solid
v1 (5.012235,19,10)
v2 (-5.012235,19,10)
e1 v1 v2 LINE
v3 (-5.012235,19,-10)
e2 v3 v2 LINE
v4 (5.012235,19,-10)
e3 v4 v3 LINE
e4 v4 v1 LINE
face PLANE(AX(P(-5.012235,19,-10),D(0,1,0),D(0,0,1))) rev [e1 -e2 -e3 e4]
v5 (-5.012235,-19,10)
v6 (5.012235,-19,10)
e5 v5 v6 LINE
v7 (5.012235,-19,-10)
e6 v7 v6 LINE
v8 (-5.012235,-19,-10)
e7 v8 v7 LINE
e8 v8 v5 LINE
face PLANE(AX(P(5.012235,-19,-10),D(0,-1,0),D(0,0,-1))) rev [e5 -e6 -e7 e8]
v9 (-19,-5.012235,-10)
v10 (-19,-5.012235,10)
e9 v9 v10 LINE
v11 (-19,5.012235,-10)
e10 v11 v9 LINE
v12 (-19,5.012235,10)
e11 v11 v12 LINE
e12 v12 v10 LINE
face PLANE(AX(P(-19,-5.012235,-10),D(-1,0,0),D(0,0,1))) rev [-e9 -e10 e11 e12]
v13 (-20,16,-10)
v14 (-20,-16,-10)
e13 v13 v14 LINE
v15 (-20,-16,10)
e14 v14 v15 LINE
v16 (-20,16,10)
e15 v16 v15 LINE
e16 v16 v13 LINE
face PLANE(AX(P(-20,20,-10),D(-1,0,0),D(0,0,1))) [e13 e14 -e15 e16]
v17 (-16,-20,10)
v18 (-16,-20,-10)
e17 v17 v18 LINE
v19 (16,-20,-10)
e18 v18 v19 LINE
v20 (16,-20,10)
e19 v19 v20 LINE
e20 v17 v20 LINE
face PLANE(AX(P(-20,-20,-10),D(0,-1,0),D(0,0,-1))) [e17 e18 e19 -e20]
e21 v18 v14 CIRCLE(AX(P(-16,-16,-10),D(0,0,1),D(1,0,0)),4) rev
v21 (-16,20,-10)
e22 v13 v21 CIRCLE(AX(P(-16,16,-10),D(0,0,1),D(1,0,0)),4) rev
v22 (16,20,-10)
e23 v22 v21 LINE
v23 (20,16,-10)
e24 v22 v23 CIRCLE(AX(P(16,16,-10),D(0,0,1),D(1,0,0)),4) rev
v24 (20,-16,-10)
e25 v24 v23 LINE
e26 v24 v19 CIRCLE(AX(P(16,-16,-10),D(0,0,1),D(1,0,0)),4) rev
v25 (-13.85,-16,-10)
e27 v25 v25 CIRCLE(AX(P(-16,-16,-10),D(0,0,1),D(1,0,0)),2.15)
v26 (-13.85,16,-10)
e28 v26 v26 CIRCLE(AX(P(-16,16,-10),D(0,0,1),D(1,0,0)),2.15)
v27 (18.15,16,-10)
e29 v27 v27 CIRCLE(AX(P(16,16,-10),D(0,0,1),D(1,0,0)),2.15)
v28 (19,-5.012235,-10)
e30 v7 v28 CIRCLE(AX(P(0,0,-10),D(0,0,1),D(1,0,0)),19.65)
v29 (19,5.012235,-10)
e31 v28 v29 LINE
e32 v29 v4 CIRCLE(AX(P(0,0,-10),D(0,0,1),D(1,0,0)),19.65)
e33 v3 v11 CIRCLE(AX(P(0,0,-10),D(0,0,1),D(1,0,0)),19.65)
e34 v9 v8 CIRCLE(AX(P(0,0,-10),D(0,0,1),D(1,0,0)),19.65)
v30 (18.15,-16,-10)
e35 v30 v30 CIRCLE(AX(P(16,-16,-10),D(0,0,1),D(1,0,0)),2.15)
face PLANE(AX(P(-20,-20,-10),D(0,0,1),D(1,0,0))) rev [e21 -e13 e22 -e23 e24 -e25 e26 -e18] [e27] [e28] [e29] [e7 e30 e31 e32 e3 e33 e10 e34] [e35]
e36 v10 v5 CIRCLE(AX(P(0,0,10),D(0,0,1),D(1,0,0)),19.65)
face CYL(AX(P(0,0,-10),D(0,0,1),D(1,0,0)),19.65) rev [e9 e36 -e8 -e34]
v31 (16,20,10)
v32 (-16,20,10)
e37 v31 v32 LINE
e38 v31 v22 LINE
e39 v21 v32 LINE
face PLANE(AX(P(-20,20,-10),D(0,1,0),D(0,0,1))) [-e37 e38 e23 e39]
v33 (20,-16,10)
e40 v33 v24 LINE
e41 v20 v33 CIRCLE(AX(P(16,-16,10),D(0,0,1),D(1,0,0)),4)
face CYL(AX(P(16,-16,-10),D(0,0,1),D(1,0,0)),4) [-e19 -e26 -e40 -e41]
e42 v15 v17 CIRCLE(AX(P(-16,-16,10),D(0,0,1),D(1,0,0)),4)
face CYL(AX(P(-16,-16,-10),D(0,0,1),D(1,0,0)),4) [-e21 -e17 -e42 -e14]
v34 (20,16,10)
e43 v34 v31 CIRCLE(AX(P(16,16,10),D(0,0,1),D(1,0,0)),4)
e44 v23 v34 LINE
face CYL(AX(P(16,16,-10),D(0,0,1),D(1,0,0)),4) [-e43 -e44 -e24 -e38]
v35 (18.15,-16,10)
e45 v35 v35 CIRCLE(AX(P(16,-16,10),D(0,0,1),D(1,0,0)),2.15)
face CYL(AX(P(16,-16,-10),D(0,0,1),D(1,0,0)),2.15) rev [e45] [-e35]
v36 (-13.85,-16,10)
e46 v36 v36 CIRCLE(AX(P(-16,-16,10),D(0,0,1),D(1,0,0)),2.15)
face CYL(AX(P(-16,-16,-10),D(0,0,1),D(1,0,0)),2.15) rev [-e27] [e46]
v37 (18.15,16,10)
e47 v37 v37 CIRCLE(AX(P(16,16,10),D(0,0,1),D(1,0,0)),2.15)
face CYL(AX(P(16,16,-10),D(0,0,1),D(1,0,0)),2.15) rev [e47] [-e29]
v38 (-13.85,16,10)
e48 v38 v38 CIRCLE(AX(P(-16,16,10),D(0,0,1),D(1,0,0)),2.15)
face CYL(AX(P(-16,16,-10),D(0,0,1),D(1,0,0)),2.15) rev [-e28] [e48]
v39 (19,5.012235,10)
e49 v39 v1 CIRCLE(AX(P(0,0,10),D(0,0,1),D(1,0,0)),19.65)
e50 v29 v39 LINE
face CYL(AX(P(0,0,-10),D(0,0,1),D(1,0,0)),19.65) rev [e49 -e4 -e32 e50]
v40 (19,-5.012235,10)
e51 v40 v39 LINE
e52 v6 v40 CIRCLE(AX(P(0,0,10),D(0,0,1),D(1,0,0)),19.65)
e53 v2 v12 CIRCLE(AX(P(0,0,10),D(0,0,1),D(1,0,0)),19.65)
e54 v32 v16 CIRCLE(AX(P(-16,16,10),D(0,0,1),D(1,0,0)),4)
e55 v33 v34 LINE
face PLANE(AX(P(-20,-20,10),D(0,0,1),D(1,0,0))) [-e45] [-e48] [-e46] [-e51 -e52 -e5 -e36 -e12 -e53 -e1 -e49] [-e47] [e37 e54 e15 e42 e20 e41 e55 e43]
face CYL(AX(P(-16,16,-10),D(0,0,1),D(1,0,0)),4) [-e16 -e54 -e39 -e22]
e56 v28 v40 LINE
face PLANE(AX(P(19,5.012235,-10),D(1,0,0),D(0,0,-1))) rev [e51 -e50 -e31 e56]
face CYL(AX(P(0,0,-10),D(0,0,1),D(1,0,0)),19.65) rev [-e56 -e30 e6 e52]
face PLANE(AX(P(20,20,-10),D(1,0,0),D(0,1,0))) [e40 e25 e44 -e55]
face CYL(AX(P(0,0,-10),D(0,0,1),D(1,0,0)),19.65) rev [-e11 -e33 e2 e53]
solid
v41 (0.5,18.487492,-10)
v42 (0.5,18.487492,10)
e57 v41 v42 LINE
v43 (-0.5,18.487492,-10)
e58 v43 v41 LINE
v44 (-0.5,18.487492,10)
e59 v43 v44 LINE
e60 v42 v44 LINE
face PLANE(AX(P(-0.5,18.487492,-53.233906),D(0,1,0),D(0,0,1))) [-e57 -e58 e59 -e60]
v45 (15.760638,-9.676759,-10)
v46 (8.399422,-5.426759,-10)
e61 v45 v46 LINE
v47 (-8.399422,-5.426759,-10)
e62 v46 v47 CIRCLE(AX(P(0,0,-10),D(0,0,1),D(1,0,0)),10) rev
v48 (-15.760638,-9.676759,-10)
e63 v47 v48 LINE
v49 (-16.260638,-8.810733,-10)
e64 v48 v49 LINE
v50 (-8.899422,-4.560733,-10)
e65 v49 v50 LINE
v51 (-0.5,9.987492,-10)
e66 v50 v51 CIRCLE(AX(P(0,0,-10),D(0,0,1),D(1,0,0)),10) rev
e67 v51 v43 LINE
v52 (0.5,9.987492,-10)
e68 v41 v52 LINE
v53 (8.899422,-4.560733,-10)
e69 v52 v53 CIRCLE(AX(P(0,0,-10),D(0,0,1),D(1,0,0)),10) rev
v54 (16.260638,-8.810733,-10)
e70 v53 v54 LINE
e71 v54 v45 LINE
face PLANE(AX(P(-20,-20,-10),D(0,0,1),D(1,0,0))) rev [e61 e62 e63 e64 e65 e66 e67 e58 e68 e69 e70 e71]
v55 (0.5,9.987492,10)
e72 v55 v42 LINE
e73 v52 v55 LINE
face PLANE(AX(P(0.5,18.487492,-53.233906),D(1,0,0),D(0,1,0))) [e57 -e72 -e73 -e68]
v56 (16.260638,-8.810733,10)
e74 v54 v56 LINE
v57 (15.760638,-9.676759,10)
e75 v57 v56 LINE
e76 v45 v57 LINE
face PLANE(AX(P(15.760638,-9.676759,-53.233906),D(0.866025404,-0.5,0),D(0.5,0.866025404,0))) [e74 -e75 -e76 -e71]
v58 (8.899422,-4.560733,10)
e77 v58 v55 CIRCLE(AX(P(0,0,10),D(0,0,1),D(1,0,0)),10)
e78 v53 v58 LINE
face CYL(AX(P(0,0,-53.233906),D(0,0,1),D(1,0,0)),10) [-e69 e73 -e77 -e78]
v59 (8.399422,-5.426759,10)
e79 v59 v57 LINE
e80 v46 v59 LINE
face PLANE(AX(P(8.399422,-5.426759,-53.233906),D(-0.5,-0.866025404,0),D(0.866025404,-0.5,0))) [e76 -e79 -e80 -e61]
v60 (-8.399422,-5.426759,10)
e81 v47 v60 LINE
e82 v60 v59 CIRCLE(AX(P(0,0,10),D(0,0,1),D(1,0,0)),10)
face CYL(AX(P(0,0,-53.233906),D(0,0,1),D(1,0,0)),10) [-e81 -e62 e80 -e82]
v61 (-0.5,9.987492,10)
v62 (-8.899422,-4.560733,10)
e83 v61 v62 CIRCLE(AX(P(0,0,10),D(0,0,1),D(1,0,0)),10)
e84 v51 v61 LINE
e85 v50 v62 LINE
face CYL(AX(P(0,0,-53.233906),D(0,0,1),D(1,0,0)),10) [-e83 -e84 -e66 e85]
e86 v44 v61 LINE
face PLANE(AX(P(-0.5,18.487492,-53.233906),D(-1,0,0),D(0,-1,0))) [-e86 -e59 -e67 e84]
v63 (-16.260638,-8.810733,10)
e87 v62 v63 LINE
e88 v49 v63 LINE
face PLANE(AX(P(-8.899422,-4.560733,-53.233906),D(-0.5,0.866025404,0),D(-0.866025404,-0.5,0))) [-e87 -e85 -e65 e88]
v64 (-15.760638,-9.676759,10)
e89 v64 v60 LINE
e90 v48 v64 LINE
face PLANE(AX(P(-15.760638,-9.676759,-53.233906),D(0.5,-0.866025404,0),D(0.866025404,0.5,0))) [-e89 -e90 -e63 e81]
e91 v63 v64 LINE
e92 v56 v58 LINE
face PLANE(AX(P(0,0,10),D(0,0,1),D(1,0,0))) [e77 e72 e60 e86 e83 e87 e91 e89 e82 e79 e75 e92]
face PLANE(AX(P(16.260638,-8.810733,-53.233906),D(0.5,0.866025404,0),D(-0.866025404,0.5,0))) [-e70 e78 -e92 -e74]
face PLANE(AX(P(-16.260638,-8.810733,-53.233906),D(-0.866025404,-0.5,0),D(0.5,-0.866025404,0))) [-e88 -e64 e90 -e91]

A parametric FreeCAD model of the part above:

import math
import FreeCAD as App
import Part
import Sketcher
from FreeCAD import Vector
Q = App.Units.Quantity


def edges_at(feature, points):
    """Names of the edges that pass closest to the given points."""
    edges = feature.Shape.Edges
    near = lambda p: min(range(len(edges)), key=lambda i: edges[i].distToShape(Part.Vertex(*p))[0])
    return sorted({f"Edge{near(p) + 1}" for p in points})


def add_polygon(sketch, points):
    """Adds a closed chain of lines whose ends are joined by coincident constraints."""
    first, n = sketch.GeometryCount, len(points)
    for a, b in zip(points, points[1:] + points[:1]):
        sketch.addGeometry(Part.LineSegment(App.Vector(*a, 0), App.Vector(*b, 0)), False)
    for i in range(n):
        sketch.addConstraint(Sketcher.Constraint("Coincident", first + i, 2, first + (i + 1) % n, 1))

doc = App.newDocument("Part")
body = doc.addObject("PartDesign::Body", "Body")

sketch1 = doc.addObject("Sketcher::SketchObject", "Sketch")
body.addObject(sketch1)
sketch1.AttachmentSupport = (doc.XY_Plane, [""])
sketch1.MapMode = "FlatFace"
add_polygon(sketch1, [(-20, 20), (-20, -20), (20, -20), (20, 20)])
sketch1.addGeometry(Part.Circle(Vector(-16, -16, 0), Vector(0, 0, 1), 2.1), False)
sketch1.addGeometry(Part.Circle(Vector(16, -16, 0), Vector(0, 0, 1), 2.1), False)
sketch1.addGeometry(Part.Circle(Vector(-16, 16, 0), Vector(0, 0, 1), 2.1), False)
sketch1.addGeometry(Part.ArcOfCircle(Part.Circle(Vector(0, 0, 0), Vector(0, 0, 1), 19.7), math.radians(105), math.radians(165)), False)
sketch1.addGeometry(Part.LineSegment(Vector(-5, 19, 0), Vector(5, 19, 0)), False)
sketch1.addGeometry(Part.ArcOfCircle(Part.Circle(Vector(0, 0, 0), Vector(0, 0, 1), 19.7), math.radians(15), math.radians(75)), False)
sketch1.addGeometry(Part.LineSegment(Vector(19, 5, 0), Vector(19, -5, 0)), False)
sketch1.addGeometry(Part.ArcOfCircle(Part.Circle(Vector(0, 0, 0), Vector(0, 0, 1), 19.7), math.radians(-75), math.radians(-15)), False)
sketch1.addGeometry(Part.LineSegment(Vector(5, -19, 0), Vector(-5, -19, 0)), False)
sketch1.addGeometry(Part.ArcOfCircle(Part.Circle(Vector(0, 0, 0), Vector(0, 0, 1), 19.7), math.radians(-165), math.radians(-105)), False)
sketch1.addGeometry(Part.LineSegment(Vector(-19, -5, 0), Vector(-19, 5, 0)), False)
sketch1.addGeometry(Part.Circle(Vector(16, 16, 0), Vector(0, 0, 1), 2.1), False)
sketch1.addConstraint(Sketcher.Constraint("Coincident", 7, 1, 8, 1))
sketch1.addConstraint(Sketcher.Constraint("Coincident", 8, 2, 9, 2))
sketch1.addConstraint(Sketcher.Constraint("Coincident", 9, 1, 10, 1))
sketch1.addConstraint(Sketcher.Constraint("Coincident", 10, 2, 11, 2))
sketch1.addConstraint(Sketcher.Constraint("Coincident", 11, 1, 12, 1))
sketch1.addConstraint(Sketcher.Constraint("Coincident", 12, 2, 13, 2))
sketch1.addConstraint(Sketcher.Constraint("Coincident", 13, 1, 14, 1))
sketch1.addConstraint(Sketcher.Constraint("Coincident", 14, 2, 7, 2))
sketch1.addConstraint(Sketcher.Constraint("Vertical", 0))
sketch1.addConstraint(Sketcher.Constraint("Horizontal", 1))
sketch1.addConstraint(Sketcher.Constraint("Vertical", 2))
sketch1.addConstraint(Sketcher.Constraint("Horizontal", 3))
sketch1.addConstraint(Sketcher.Constraint("Horizontal", 8))
sketch1.addConstraint(Sketcher.Constraint("Vertical", 10))
sketch1.addConstraint(Sketcher.Constraint("Horizontal", 12))
sketch1.addConstraint(Sketcher.Constraint("Vertical", 14))
sketch1.addConstraint(Sketcher.Constraint("Coincident", 7, 3, -1, 1))
sketch1.addConstraint(Sketcher.Constraint("Coincident", 9, 3, -1, 1))
sketch1.addConstraint(Sketcher.Constraint("Coincident", 11, 3, -1, 1))
sketch1.addConstraint(Sketcher.Constraint("Coincident", 13, 3, -1, 1))
sketch1.addConstraint(Sketcher.Constraint("Equal", 4, 5))
sketch1.addConstraint(Sketcher.Constraint("Equal", 5, 6))
sketch1.addConstraint(Sketcher.Constraint("Equal", 7, 9))
sketch1.addConstraint(Sketcher.Constraint("Equal", 9, 11))
sketch1.addConstraint(Sketcher.Constraint("Equal", 11, 13))
sketch1.addConstraint(Sketcher.Constraint("Equal", 6, 15))
sketch1.addConstraint(Sketcher.Constraint("Symmetric", 5, 3, 6, 3, -1, 1))
sketch1.addConstraint(Sketcher.Constraint("Symmetric", 4, 3, 15, 3, -1, 1))
sketch1.addConstraint(Sketcher.Constraint("Symmetric", 0, 2, 2, 2, -1, 1))
sketch1.addConstraint(Sketcher.Constraint("Symmetric", 4, 3, 5, 3, -2))
sketch1.addConstraint(Sketcher.Constraint("Horizontal", 10, 2, 13, 1))
sketch1.addConstraint(Sketcher.Constraint("Vertical", 8, 2, 11, 1))
sketch1.addConstraint(Sketcher.Constraint("Equal", 3, 0))
sketch1.addConstraint(Sketcher.Constraint("Equal", 12, 10))
sketch1.addConstraint(Sketcher.Constraint("Diameter", 4, Q("4.3 mm")))
sketch1.addConstraint(Sketcher.Constraint("DistanceX", 1, 1, 1, 2, Q("40 mm")))
sketch1.addConstraint(Sketcher.Constraint("Radius", 7, Q("19.65 mm")))
sketch1.addConstraint(Sketcher.Constraint("DistanceX", 4, 3, -1, 1, Q("16 mm")))
sketch1.addConstraint(Sketcher.Constraint("DistanceY", 4, 3, -1, 1, Q("16 mm")))
sketch1.addConstraint(Sketcher.Constraint("DistanceY", -1, 1, 7, 1, Q("19 mm")))
pad1 = doc.addObject("PartDesign::Pad", "Pad")
body.addObject(pad1)
pad1.Profile = sketch1
pad1.Type = "TwoLengths"
pad1.Length = 10
pad1.Length2 = 10
doc.recompute()

fillet = doc.addObject("PartDesign::Fillet", "Fillet")
body.addObject(fillet)
fillet.Base = (pad1, edges_at(pad1, [
    (-20, 20, 0),
    (20, 20, 0),
    (20, -20, 0),
    (-20, -20, 0),
]))
fillet.Radius = 4
body2 = doc.addObject("PartDesign::Body", "Body001")

sketch2 = doc.addObject("Sketcher::SketchObject", "Sketch001")
body2.addObject(sketch2)
sketch2.AttachmentSupport = (doc.getObject("XY_Plane001"), [""])
sketch2.MapMode = "FlatFace"
sketch2.AttachmentOffset = App.Placement(Vector(0, 0, 10), App.Rotation())
sketch2.addGeometry(Part.LineSegment(Vector(-8.9, -4.6, 0), Vector(-16.3, -8.8, 0)), False)
sketch2.addGeometry(Part.LineSegment(Vector(-16.3, -8.8, 0), Vector(-15.8, -9.7, 0)), False)
sketch2.addGeometry(Part.LineSegment(Vector(-15.8, -9.7, 0), Vector(-8.4, -5.4, 0)), False)
sketch2.addGeometry(Part.ArcOfCircle(Part.Circle(Vector(0, 0, 0), Vector(0, 0, 1), 10), math.radians(-147), math.radians(-33)), False)
sketch2.addGeometry(Part.LineSegment(Vector(8.4, -5.4, 0), Vector(15.8, -9.7, 0)), False)
sketch2.addGeometry(Part.LineSegment(Vector(15.8, -9.7, 0), Vector(16.3, -8.8, 0)), False)
sketch2.addGeometry(Part.LineSegment(Vector(16.3, -8.8, 0), Vector(8.9, -4.6, 0)), False)
sketch2.addGeometry(Part.ArcOfCircle(Part.Circle(Vector(0, 0, 0), Vector(0, 0, 1), 10), math.radians(-27), math.radians(87)), False)
sketch2.addGeometry(Part.LineSegment(Vector(0.5, 10, 0), Vector(0.5, 18.5, 0)), False)
sketch2.addGeometry(Part.LineSegment(Vector(0.5, 18.5, 0), Vector(-0.5, 18.5, 0)), False)
sketch2.addGeometry(Part.LineSegment(Vector(-0.5, 18.5, 0), Vector(-0.5, 10, 0)), False)
sketch2.addGeometry(Part.ArcOfCircle(Part.Circle(Vector(0, 0, 0), Vector(0, 0, 1), 10), math.radians(93), math.radians(207)), False)
sketch2.addConstraint(Sketcher.Constraint("Coincident", 0, 2, 1, 1))
sketch2.addConstraint(Sketcher.Constraint("Coincident", 1, 2, 2, 1))
sketch2.addConstraint(Sketcher.Constraint("Coincident", 2, 2, 3, 1))
sketch2.addConstraint(Sketcher.Constraint("Coincident", 3, 2, 4, 1))
sketch2.addConstraint(Sketcher.Constraint("Coincident", 4, 2, 5, 1))
sketch2.addConstraint(Sketcher.Constraint("Coincident", 5, 2, 6, 1))
sketch2.addConstraint(Sketcher.Constraint("Coincident", 6, 2, 7, 1))
sketch2.addConstraint(Sketcher.Constraint("Coincident", 7, 2, 8, 1))
sketch2.addConstraint(Sketcher.Constraint("Coincident", 8, 2, 9, 1))
sketch2.addConstraint(Sketcher.Constraint("Coincident", 9, 2, 10, 1))
sketch2.addConstraint(Sketcher.Constraint("Coincident", 10, 2, 11, 1))
sketch2.addConstraint(Sketcher.Constraint("Coincident", 11, 2, 0, 1))
sketch2.addConstraint(Sketcher.Constraint("Vertical", 8))
sketch2.addConstraint(Sketcher.Constraint("Horizontal", 9))
sketch2.addConstraint(Sketcher.Constraint("Vertical", 10))
sketch2.addConstraint(Sketcher.Constraint("Coincident", 3, 3, -1, 1))
sketch2.addConstraint(Sketcher.Constraint("Coincident", 7, 3, -1, 1))
sketch2.addConstraint(Sketcher.Constraint("Coincident", 11, 3, -1, 1))
sketch2.addConstraint(Sketcher.Constraint("Equal", 3, 7))
sketch2.addConstraint(Sketcher.Constraint("Equal", 7, 11))
sketch2.addConstraint(Sketcher.Constraint("Symmetric", 1, 2, 4, 2, -2))
sketch2.addConstraint(Sketcher.Constraint("Symmetric", 0, 2, 5, 2, -2))
sketch2.addConstraint(Sketcher.Constraint("Perpendicular", 0, 1))
sketch2.addConstraint(Sketcher.Constraint("Perpendicular", 1, 2))
sketch2.addConstraint(Sketcher.Constraint("Perpendicular", 4, 5))
sketch2.addConstraint(Sketcher.Constraint("Perpendicular", 5, 6))
sketch2.addConstraint(Sketcher.Constraint("Horizontal", 7, 2, 10, 2))
sketch2.addConstraint(Sketcher.Constraint("Equal", 0, 2))
sketch2.addConstraint(Sketcher.Constraint("Radius", 3, Q("10 mm")))
sketch2.addConstraint(Sketcher.Constraint("DistanceX", 9, 2, 9, 1, Q("1 mm")))
sketch2.addConstraint(Sketcher.Constraint("Angle", 0, Q("-150 deg")))
sketch2.addConstraint(Sketcher.Constraint("Distance", 1, Q("1 mm")))
sketch2.addConstraint(Sketcher.Constraint("DistanceY", 8, 1, 8, 2, Q("8.5 mm")))
sketch2.addConstraint(Sketcher.Constraint("Distance", 0, Q("8.5 mm")))
pad2 = doc.addObject("PartDesign::Pad", "Pad001")
body2.addObject(pad2)
pad2.Profile = sketch2
pad2.Length = 20
pad2.Reversed = True

doc.recompute()
